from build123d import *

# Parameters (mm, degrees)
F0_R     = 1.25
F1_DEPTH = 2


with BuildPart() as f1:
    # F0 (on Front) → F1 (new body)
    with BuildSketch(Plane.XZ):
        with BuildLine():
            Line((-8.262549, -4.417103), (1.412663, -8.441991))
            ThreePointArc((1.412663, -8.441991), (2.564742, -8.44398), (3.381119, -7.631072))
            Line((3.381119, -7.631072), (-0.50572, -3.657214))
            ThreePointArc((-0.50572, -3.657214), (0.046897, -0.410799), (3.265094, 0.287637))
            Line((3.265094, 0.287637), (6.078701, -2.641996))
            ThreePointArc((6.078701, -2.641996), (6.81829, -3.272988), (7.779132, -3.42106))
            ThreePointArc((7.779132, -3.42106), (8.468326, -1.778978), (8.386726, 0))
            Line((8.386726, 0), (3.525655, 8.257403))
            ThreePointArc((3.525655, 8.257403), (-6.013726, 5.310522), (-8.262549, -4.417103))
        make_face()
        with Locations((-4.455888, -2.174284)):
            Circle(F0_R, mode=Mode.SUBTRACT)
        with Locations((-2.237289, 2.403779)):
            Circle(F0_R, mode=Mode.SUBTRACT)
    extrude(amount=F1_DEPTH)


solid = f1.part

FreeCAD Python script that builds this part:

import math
import FreeCAD as App
import Part
import Sketcher

V = App.Vector
Q = App.Units.Quantity

doc = App.newDocument("Part")
params = doc.addObject("Spreadsheet::Sheet", "Params")
for row, (alias, value) in enumerate([
    ("sketch1_diameter", "2.5 mm"),
    ("pad1_length", "2 mm"),
], start=1):
    params.set(f"A{row}", alias)
    params.set(f"B{row}", "=" + value)
    params.setAlias(f"B{row}", alias)

body = doc.addObject("PartDesign::Body", "Body")

# Sketch on XZ plane
sketch1 = body.newObject("Sketcher::SketchObject", "Sketch")
sketch1.AttachmentSupport = (doc.getObject("XZ_Plane"), [""])
sketch1.MapMode = "FlatFace"
sketch1.addGeometry([
    Part.LineSegment(V(-8.262549, -4.417103, 0), V(1.412663, -8.441991, 0)),  # 0
    Part.ArcOfCircle(Part.Circle(V(1.991105, -7.05151, 0), V(0, 0, 1), 1.505998), math.radians(-112.587377), math.radians(-22.633524)),  # 1
    Part.LineSegment(V(3.381119, -7.631072, 0), V(-0.50572, -3.657214, 0)),  # 2
    Part.ArcOfCircle(Part.Circle(V(2.172811, -2.442922, 0), V(0, 0, 1), 2.940924), math.radians(68.197516), math.radians(204.38681)),  # 3
    Part.LineSegment(V(3.265094, 0.287637, 0), V(6.078701, -2.641996, 0)),  # 4
    Part.ArcOfCircle(Part.Circle(V(7.559402, -1.655392, 0), V(0, 0, 1), 1.779287), math.radians(-146.324146), math.radians(-82.906264)),  # 5
    Part.ArcOfCircle(Part.Circle(V(4.479655, -1.070574, 0), V(0, 0, 1), 4.05109), math.radians(-35.465362), math.radians(15.323469)),  # 6
    Part.LineSegment(V(8.386726, 0, 0), V(3.525655, 8.257403, 0)),  # 7
    Part.ArcOfCircle(Part.Circle(V(1.317515, -1.50806, 0), V(0, 0, 1), 10.012), math.radians(77.258699), math.radians(196.891223)),  # 8
    Part.Circle(V(-4.455888, -2.174284, 0), V(0, 0, 1), 1.25),  # 9
    Part.Circle(V(-2.237289, 2.403779, 0), V(0, 0, 1), 1.25),  # 10
], False)
sketch1.addConstraint([
    Sketcher.Constraint("Tangent", 0, 2, 1, 1),
    Sketcher.Constraint("Coincident", 1, 2, 2, 1),
    Sketcher.Constraint("Coincident", 2, 2, 3, 2),
    Sketcher.Constraint("Coincident", 3, 1, 4, 1),
    Sketcher.Constraint("Coincident", 4, 2, 5, 1),
    Sketcher.Constraint("Coincident", 5, 2, 6, 1),
    Sketcher.Constraint("Coincident", 6, 2, 7, 1),
    Sketcher.Constraint("Coincident", 7, 2, 8, 1),
    Sketcher.Constraint("Coincident", 8, 2, 0, 1),
    Sketcher.Constraint("Equal", 9, 10),
    Sketcher.Constraint("PointOnObject", 6, 2, -1),
    Sketcher.Constraint("Diameter", 9, Q("2.5 mm")),
    Sketcher.Constraint("Radius", 1, Q("1.505998 mm")),
    Sketcher.Constraint("Radius", 8, Q("10.012 mm")),
    Sketcher.Constraint("Radius", 6, Q("4.05109 mm")),
    Sketcher.Constraint("Distance", 0, Q("10.479 mm")),
    Sketcher.Constraint("Distance", 7, Q("9.582 mm")),
    Sketcher.Constraint("Radius", 3, Q("2.940924 mm")),
    Sketcher.Constraint("Radius", 5, Q("1.779287 mm")),
    Sketcher.Constraint("DistanceX", 7, 2, 6, 3, Q("0.954 mm")),
    Sketcher.Constraint("DistanceX", -1, 1, 4, 2, Q("6.078701 mm")),
    Sketcher.Constraint("DistanceX", 9, 3, 3, 3, Q("6.628699 mm")),
    Sketcher.Constraint("DistanceX", 9, 3, 10, 3, Q("2.218599 mm")),
    Sketcher.Constraint("DistanceY", 3, 3, 10, 3, Q("4.846701 mm")),
    Sketcher.Constraint("DistanceX", 4, 2, 5, 3, Q("1.480701 mm")),
    Sketcher.Constraint("DistanceY", 1, 3, -1, 1, Q("7.05151 mm")),
    Sketcher.Constraint("DistanceX", -1, 1, 3, 3, Q("2.172811 mm")),
    Sketcher.Constraint("DistanceY", 3, 3, -1, 1, Q("2.442922 mm")),
    Sketcher.Constraint("DistanceY", 8, 3, -1, 1, Q("1.50806 mm")),
    Sketcher.Constraint("DistanceY", 0, 2, -1, 1, Q("8.441991 mm")),
    Sketcher.Constraint("DistanceX", -1, 1, 1, 2, Q("3.381119 mm")),
    Sketcher.Constraint("DistanceX", 2, 2, -1, 1, Q("0.50572 mm")),
    Sketcher.Constraint("DistanceX", -1, 1, 5, 2, Q("7.779132 mm")),
    Sketcher.Constraint("DistanceY", 5, 2, -1, 1, Q("3.42106 mm")),
    Sketcher.Constraint("DistanceY", 5, 3, 6, 3, Q("0.584818 mm")),
    Sketcher.Constraint("DistanceY", 9, 3, 6, 3, Q("1.10371 mm")),
    Sketcher.Constraint("DistanceX", 3, 1, 6, 3, Q("1.214561 mm")),
])
sketch1.setExpression("Constraints[11]", "Params.sketch1_diameter")
pad1 = body.newObject("PartDesign::Pad", "Pad")
pad1.Profile = sketch1
pad1.setExpression("Length", "Params.pad1_length")

doc.recompute()
